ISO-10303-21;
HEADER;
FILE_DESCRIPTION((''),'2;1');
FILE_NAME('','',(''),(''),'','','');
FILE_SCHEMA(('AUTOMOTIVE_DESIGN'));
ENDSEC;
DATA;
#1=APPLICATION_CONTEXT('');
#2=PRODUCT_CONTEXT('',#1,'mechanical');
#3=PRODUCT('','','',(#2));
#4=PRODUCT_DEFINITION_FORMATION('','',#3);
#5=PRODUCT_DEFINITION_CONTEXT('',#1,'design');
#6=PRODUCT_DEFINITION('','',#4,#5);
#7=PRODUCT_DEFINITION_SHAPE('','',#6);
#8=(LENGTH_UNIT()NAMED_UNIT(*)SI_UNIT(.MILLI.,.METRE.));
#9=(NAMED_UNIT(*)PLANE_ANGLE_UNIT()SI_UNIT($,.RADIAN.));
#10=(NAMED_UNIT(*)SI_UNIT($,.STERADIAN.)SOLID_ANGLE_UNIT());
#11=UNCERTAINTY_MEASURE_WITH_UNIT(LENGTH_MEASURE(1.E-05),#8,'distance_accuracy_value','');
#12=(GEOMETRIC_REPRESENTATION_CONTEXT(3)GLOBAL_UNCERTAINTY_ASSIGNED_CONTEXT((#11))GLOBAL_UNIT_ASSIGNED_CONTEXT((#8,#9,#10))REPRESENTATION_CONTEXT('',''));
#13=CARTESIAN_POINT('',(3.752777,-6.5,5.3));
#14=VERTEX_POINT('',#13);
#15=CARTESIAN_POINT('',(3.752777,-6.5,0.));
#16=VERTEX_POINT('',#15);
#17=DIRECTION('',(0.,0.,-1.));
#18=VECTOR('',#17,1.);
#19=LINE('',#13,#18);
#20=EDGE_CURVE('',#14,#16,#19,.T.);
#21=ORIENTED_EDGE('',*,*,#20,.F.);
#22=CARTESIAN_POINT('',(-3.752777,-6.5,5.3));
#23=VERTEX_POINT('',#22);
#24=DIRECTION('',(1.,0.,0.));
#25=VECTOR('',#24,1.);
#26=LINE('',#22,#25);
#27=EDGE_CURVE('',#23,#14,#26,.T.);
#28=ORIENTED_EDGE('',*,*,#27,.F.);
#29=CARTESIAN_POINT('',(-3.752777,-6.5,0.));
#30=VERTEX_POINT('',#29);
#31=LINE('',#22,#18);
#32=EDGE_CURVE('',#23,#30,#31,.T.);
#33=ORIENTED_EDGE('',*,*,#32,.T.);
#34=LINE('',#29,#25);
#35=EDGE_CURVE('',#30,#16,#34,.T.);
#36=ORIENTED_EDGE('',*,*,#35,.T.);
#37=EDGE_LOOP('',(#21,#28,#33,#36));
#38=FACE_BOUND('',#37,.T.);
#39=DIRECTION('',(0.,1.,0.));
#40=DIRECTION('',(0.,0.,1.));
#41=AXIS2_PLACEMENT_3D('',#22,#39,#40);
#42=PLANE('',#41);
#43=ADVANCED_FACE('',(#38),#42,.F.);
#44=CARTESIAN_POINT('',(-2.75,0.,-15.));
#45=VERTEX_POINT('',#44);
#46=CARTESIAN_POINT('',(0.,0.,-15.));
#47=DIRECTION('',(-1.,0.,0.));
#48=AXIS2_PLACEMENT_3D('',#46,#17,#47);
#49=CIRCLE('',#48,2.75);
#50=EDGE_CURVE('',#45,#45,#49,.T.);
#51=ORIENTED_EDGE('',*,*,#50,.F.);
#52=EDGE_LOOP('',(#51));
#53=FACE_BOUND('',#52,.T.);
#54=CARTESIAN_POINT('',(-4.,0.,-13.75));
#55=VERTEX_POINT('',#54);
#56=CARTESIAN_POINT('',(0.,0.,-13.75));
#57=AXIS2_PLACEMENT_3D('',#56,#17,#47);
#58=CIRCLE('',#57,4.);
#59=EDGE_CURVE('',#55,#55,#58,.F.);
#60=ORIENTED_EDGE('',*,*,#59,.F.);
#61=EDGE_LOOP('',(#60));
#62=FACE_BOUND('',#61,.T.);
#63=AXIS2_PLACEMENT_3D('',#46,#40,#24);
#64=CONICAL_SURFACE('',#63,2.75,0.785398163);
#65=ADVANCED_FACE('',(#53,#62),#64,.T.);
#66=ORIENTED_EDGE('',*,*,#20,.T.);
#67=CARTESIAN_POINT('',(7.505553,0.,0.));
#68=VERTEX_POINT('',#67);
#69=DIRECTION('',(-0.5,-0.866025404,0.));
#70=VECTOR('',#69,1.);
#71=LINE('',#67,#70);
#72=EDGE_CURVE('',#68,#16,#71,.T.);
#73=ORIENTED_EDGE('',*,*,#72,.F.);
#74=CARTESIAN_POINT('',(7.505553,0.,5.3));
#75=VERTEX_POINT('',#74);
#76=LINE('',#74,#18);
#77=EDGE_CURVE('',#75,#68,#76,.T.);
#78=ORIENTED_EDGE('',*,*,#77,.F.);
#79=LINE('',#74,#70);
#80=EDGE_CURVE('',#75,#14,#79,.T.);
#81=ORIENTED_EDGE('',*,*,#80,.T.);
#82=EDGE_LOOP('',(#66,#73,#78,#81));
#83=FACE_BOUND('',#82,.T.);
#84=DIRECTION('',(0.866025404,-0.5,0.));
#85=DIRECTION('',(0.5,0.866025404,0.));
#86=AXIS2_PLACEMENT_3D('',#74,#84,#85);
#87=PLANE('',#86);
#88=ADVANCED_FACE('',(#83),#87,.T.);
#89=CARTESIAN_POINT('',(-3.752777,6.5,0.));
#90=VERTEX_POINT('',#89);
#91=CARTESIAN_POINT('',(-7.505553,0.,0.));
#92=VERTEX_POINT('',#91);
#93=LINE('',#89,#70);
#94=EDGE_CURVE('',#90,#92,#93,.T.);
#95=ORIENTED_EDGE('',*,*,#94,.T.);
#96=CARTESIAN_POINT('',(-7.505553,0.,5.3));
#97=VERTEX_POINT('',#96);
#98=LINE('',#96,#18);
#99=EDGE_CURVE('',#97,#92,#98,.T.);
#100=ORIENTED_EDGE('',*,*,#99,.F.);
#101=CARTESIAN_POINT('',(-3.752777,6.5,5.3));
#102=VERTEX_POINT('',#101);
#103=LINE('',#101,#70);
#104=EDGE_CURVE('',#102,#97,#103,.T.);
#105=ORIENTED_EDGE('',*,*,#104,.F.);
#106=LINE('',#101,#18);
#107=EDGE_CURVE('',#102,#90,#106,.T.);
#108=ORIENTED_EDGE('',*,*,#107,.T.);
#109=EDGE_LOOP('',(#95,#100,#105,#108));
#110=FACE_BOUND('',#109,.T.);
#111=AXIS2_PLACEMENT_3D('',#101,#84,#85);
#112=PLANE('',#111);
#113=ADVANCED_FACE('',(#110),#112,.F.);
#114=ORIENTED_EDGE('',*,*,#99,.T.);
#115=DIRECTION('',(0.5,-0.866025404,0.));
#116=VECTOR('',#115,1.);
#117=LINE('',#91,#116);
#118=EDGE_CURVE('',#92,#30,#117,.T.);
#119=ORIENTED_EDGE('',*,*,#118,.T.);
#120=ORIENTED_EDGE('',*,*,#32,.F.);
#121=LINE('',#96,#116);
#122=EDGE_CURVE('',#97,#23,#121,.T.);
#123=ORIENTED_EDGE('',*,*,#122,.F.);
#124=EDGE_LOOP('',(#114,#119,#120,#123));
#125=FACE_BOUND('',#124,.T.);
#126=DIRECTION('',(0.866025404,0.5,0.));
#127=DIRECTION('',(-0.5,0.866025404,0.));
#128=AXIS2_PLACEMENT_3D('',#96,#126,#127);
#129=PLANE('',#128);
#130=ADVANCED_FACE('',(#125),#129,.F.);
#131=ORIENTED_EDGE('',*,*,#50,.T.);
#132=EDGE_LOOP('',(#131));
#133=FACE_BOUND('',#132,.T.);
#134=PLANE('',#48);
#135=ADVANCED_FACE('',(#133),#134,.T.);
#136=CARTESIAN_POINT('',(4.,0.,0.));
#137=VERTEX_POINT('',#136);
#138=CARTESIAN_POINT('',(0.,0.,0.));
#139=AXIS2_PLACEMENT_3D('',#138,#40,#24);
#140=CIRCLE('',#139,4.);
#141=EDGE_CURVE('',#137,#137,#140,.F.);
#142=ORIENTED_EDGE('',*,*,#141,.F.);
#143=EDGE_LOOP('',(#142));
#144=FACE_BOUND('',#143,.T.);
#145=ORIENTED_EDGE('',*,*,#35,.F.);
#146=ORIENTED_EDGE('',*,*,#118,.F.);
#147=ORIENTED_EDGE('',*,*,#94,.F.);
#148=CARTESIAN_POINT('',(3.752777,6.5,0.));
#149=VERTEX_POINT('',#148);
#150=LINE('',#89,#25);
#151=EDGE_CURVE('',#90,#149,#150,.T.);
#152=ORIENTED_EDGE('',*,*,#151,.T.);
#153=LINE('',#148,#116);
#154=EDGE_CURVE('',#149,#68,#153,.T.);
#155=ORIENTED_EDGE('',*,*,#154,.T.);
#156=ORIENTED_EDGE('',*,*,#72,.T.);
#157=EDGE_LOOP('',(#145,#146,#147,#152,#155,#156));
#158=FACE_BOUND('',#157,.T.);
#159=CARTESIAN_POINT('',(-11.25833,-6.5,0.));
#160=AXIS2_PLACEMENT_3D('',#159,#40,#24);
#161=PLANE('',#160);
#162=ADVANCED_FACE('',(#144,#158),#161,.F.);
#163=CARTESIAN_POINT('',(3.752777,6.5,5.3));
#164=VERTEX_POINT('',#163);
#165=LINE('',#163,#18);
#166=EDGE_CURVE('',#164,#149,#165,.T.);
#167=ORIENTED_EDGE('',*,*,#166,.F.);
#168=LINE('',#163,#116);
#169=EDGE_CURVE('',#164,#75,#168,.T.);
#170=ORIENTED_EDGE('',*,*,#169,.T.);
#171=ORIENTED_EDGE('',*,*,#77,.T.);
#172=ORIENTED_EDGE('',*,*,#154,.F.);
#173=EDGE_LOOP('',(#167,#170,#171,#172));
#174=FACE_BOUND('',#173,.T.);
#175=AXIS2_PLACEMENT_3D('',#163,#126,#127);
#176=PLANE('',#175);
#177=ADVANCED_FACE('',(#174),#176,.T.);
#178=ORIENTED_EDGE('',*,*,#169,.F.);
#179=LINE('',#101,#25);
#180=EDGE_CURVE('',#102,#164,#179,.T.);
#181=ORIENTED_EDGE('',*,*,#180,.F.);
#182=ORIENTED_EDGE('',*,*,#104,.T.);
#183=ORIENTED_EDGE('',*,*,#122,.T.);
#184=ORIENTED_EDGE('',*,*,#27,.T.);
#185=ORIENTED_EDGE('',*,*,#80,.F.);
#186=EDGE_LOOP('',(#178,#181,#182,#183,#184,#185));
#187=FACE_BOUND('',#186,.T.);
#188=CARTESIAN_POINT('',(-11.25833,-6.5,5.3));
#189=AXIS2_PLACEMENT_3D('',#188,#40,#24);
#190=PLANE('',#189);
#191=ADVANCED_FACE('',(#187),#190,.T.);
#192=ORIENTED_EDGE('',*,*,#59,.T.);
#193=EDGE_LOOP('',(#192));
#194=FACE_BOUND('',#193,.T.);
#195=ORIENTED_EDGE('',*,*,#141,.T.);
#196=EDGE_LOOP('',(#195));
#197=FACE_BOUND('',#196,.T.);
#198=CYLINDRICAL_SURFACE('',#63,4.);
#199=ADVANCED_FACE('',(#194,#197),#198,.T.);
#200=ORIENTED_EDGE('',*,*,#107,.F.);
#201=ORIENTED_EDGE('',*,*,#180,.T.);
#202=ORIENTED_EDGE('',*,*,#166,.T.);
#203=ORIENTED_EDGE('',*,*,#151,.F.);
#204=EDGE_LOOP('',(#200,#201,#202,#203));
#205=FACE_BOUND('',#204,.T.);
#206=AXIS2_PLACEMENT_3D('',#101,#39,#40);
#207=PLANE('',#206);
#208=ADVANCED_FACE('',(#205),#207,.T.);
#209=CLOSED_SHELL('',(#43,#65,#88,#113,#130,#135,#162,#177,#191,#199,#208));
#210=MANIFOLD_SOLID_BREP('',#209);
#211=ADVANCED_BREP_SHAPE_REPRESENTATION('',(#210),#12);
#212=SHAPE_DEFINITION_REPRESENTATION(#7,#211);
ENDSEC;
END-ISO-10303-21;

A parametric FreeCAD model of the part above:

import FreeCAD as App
import Part
import Sketcher
from FreeCAD import Vector
Q = App.Units.Quantity


def edges_at(feature, points):
    """Names of the edges that pass closest to the given points."""
    edges = feature.Shape.Edges
    near = lambda p: min(range(len(edges)), key=lambda i: edges[i].distToShape(Part.Vertex(*p))[0])
    return sorted({f"Edge{near(p) + 1}" for p in points})

doc = App.newDocument("Part")
body = doc.addObject("PartDesign::Body", "Body")

# Sketch on XY plane
sketch1 = doc.addObject("Sketcher::SketchObject", "Sketch")
body.addObject(sketch1)
sketch1.AttachmentSupport = (doc.XY_Plane, [""])
sketch1.MapMode = "FlatFace"
sketch1.addGeometry(Part.LineSegment(Vector(3.752777, 6.5, 0), Vector(-3.752777, 6.5, 0)), False)
sketch1.addGeometry(Part.LineSegment(Vector(-3.752777, 6.5, 0), Vector(-7.505553, 0, 0)), False)
sketch1.addGeometry(Part.LineSegment(Vector(-7.505553, 0, 0), Vector(-3.752777, -6.5, 0)), False)
sketch1.addGeometry(Part.LineSegment(Vector(-3.752777, -6.5, 0), Vector(3.752777, -6.5, 0)), False)
sketch1.addGeometry(Part.LineSegment(Vector(3.752777, -6.5, 0), Vector(7.505553, 0, 0)), False)
sketch1.addGeometry(Part.LineSegment(Vector(7.505553, 0, 0), Vector(3.752777, 6.5, 0)), False)
sketch1.addConstraint(Sketcher.Constraint("Coincident", 0, 2, 1, 1))
sketch1.addConstraint(Sketcher.Constraint("Coincident", 1, 2, 2, 1))
sketch1.addConstraint(Sketcher.Constraint("Coincident", 2, 2, 3, 1))
sketch1.addConstraint(Sketcher.Constraint("Coincident", 3, 2, 4, 1))
sketch1.addConstraint(Sketcher.Constraint("Coincident", 4, 2, 5, 1))
sketch1.addConstraint(Sketcher.Constraint("Coincident", 5, 2, 0, 1))
sketch1.addConstraint(Sketcher.Constraint("Horizontal", 0))
sketch1.addConstraint(Sketcher.Constraint("Horizontal", 3))
sketch1.addConstraint(Sketcher.Constraint("Symmetric", 0, 2, 3, 2, -1, 1))
sketch1.addConstraint(Sketcher.Constraint("Symmetric", 1, 2, 4, 2, -1, 1))
sketch1.addConstraint(Sketcher.Constraint("PointOnObject", 1, 2, -1))
sketch1.addConstraint(Sketcher.Constraint("Parallel", 2, 5))
sketch1.addConstraint(Sketcher.Constraint("Vertical", 0, 2, 2, 2))
sketch1.addConstraint(Sketcher.Constraint("Angle", 1, Q("-120 deg")))
sketch1.addConstraint(Sketcher.Constraint("DistanceY", 2, 2, 0, 2, Q("13 mm")))
sketch1.addConstraint(Sketcher.Constraint("DistanceX", 0, 2, 0, 1, Q("7.505554 mm")))
pad1 = doc.addObject("PartDesign::Pad", "Pad")
body.addObject(pad1)
pad1.Profile = sketch1
pad1.Length = 5.3

# Sketch on XY plane
sketch2 = doc.addObject("Sketcher::SketchObject", "Sketch001")
body.addObject(sketch2)
sketch2.AttachmentSupport = (doc.XY_Plane, [""])
sketch2.MapMode = "FlatFace"
sketch2.addGeometry(Part.Circle(Vector(0, 0, 0), Vector(0, 0, 1), 4), False)
sketch2.addConstraint(Sketcher.Constraint("Coincident", 0, 3, -1, 1))
sketch2.addConstraint(Sketcher.Constraint("Diameter", 0, Q("8 mm")))
pad2 = doc.addObject("PartDesign::Pad", "Pad001")
body.addObject(pad2)
pad2.Profile = sketch2
pad2.Length = 15
pad2.Reversed = True
doc.recompute()

chamfer = doc.addObject("PartDesign::Chamfer", "Chamfer")
body.addObject(chamfer)
chamfer.Base = (pad2, edges_at(pad2, [(-4, 0, -15)]))
chamfer.Size = 1.25

doc.recompute()
